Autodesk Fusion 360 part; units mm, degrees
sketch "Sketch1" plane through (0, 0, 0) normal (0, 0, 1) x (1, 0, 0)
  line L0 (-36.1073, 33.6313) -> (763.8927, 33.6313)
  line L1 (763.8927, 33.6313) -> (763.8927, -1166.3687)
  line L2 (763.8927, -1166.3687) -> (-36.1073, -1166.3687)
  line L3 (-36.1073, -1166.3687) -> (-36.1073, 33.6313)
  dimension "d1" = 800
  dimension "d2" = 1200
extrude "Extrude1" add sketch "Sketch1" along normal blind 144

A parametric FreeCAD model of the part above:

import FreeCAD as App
import Part
import Sketcher
from FreeCAD import Vector
Q = App.Units.Quantity

doc = App.newDocument("Part")
params = doc.addObject("Spreadsheet::Sheet", "Params")
for row, (alias, value) in enumerate([
    ("sketch1_width", "800 mm"),
    ("sketch1_height", "1200 mm"),
    ("pad1_length", "144 mm"),
], start=1):
    params.set(f"A{row}", alias)
    params.set(f"B{row}", "=" + value)
    params.setAlias(f"B{row}", alias)

body = doc.addObject("PartDesign::Body", "Body")

# Sketch on XY plane
sketch1 = body.newObject("Sketcher::SketchObject", "Sketch")
sketch1.AttachmentSupport = (doc.getObject("XY_Plane"), [""])
sketch1.MapMode = "FlatFace"
sketch1.addGeometry(Part.LineSegment(Vector(763.8927, 33.6313, 0), Vector(-36.1073, 33.6313, 0)), False)
sketch1.addGeometry(Part.LineSegment(Vector(-36.1073, 33.6313, 0), Vector(-36.1073, -1166.3687, 0)), False)
sketch1.addGeometry(Part.LineSegment(Vector(-36.1073, -1166.3687, 0), Vector(763.8927, -1166.3687, 0)), False)
sketch1.addGeometry(Part.LineSegment(Vector(763.8927, -1166.3687, 0), Vector(763.8927, 33.6313, 0)), False)
sketch1.addConstraint(Sketcher.Constraint("Coincident", 0, 2, 1, 1))
sketch1.addConstraint(Sketcher.Constraint("Coincident", 1, 2, 2, 1))
sketch1.addConstraint(Sketcher.Constraint("Coincident", 2, 2, 3, 1))
sketch1.addConstraint(Sketcher.Constraint("Coincident", 3, 2, 0, 1))
sketch1.addConstraint(Sketcher.Constraint("Horizontal", 0))
sketch1.addConstraint(Sketcher.Constraint("Vertical", 1))
sketch1.addConstraint(Sketcher.Constraint("Horizontal", 2))
sketch1.addConstraint(Sketcher.Constraint("Vertical", 3))
sketch1.addConstraint(Sketcher.Constraint("DistanceX", 0, 2, 0, 1, Q("800 mm")))
sketch1.addConstraint(Sketcher.Constraint("DistanceY", 1, 2, 1, 1, Q("1200 mm")))
sketch1.addConstraint(Sketcher.Constraint("DistanceX", 0, 2, -1, 1, Q("36.1073 mm")))
sketch1.addConstraint(Sketcher.Constraint("DistanceY", -1, 1, 0, 2, Q("33.6313 mm")))
sketch1.setExpression("Constraints[8]", "Params.sketch1_width")
sketch1.setExpression("Constraints[9]", "Params.sketch1_height")
pad1 = body.newObject("PartDesign::Pad", "Pad")
pad1.Profile = sketch1
pad1.setExpression("Length", "Params.pad1_length")

doc.recompute()
